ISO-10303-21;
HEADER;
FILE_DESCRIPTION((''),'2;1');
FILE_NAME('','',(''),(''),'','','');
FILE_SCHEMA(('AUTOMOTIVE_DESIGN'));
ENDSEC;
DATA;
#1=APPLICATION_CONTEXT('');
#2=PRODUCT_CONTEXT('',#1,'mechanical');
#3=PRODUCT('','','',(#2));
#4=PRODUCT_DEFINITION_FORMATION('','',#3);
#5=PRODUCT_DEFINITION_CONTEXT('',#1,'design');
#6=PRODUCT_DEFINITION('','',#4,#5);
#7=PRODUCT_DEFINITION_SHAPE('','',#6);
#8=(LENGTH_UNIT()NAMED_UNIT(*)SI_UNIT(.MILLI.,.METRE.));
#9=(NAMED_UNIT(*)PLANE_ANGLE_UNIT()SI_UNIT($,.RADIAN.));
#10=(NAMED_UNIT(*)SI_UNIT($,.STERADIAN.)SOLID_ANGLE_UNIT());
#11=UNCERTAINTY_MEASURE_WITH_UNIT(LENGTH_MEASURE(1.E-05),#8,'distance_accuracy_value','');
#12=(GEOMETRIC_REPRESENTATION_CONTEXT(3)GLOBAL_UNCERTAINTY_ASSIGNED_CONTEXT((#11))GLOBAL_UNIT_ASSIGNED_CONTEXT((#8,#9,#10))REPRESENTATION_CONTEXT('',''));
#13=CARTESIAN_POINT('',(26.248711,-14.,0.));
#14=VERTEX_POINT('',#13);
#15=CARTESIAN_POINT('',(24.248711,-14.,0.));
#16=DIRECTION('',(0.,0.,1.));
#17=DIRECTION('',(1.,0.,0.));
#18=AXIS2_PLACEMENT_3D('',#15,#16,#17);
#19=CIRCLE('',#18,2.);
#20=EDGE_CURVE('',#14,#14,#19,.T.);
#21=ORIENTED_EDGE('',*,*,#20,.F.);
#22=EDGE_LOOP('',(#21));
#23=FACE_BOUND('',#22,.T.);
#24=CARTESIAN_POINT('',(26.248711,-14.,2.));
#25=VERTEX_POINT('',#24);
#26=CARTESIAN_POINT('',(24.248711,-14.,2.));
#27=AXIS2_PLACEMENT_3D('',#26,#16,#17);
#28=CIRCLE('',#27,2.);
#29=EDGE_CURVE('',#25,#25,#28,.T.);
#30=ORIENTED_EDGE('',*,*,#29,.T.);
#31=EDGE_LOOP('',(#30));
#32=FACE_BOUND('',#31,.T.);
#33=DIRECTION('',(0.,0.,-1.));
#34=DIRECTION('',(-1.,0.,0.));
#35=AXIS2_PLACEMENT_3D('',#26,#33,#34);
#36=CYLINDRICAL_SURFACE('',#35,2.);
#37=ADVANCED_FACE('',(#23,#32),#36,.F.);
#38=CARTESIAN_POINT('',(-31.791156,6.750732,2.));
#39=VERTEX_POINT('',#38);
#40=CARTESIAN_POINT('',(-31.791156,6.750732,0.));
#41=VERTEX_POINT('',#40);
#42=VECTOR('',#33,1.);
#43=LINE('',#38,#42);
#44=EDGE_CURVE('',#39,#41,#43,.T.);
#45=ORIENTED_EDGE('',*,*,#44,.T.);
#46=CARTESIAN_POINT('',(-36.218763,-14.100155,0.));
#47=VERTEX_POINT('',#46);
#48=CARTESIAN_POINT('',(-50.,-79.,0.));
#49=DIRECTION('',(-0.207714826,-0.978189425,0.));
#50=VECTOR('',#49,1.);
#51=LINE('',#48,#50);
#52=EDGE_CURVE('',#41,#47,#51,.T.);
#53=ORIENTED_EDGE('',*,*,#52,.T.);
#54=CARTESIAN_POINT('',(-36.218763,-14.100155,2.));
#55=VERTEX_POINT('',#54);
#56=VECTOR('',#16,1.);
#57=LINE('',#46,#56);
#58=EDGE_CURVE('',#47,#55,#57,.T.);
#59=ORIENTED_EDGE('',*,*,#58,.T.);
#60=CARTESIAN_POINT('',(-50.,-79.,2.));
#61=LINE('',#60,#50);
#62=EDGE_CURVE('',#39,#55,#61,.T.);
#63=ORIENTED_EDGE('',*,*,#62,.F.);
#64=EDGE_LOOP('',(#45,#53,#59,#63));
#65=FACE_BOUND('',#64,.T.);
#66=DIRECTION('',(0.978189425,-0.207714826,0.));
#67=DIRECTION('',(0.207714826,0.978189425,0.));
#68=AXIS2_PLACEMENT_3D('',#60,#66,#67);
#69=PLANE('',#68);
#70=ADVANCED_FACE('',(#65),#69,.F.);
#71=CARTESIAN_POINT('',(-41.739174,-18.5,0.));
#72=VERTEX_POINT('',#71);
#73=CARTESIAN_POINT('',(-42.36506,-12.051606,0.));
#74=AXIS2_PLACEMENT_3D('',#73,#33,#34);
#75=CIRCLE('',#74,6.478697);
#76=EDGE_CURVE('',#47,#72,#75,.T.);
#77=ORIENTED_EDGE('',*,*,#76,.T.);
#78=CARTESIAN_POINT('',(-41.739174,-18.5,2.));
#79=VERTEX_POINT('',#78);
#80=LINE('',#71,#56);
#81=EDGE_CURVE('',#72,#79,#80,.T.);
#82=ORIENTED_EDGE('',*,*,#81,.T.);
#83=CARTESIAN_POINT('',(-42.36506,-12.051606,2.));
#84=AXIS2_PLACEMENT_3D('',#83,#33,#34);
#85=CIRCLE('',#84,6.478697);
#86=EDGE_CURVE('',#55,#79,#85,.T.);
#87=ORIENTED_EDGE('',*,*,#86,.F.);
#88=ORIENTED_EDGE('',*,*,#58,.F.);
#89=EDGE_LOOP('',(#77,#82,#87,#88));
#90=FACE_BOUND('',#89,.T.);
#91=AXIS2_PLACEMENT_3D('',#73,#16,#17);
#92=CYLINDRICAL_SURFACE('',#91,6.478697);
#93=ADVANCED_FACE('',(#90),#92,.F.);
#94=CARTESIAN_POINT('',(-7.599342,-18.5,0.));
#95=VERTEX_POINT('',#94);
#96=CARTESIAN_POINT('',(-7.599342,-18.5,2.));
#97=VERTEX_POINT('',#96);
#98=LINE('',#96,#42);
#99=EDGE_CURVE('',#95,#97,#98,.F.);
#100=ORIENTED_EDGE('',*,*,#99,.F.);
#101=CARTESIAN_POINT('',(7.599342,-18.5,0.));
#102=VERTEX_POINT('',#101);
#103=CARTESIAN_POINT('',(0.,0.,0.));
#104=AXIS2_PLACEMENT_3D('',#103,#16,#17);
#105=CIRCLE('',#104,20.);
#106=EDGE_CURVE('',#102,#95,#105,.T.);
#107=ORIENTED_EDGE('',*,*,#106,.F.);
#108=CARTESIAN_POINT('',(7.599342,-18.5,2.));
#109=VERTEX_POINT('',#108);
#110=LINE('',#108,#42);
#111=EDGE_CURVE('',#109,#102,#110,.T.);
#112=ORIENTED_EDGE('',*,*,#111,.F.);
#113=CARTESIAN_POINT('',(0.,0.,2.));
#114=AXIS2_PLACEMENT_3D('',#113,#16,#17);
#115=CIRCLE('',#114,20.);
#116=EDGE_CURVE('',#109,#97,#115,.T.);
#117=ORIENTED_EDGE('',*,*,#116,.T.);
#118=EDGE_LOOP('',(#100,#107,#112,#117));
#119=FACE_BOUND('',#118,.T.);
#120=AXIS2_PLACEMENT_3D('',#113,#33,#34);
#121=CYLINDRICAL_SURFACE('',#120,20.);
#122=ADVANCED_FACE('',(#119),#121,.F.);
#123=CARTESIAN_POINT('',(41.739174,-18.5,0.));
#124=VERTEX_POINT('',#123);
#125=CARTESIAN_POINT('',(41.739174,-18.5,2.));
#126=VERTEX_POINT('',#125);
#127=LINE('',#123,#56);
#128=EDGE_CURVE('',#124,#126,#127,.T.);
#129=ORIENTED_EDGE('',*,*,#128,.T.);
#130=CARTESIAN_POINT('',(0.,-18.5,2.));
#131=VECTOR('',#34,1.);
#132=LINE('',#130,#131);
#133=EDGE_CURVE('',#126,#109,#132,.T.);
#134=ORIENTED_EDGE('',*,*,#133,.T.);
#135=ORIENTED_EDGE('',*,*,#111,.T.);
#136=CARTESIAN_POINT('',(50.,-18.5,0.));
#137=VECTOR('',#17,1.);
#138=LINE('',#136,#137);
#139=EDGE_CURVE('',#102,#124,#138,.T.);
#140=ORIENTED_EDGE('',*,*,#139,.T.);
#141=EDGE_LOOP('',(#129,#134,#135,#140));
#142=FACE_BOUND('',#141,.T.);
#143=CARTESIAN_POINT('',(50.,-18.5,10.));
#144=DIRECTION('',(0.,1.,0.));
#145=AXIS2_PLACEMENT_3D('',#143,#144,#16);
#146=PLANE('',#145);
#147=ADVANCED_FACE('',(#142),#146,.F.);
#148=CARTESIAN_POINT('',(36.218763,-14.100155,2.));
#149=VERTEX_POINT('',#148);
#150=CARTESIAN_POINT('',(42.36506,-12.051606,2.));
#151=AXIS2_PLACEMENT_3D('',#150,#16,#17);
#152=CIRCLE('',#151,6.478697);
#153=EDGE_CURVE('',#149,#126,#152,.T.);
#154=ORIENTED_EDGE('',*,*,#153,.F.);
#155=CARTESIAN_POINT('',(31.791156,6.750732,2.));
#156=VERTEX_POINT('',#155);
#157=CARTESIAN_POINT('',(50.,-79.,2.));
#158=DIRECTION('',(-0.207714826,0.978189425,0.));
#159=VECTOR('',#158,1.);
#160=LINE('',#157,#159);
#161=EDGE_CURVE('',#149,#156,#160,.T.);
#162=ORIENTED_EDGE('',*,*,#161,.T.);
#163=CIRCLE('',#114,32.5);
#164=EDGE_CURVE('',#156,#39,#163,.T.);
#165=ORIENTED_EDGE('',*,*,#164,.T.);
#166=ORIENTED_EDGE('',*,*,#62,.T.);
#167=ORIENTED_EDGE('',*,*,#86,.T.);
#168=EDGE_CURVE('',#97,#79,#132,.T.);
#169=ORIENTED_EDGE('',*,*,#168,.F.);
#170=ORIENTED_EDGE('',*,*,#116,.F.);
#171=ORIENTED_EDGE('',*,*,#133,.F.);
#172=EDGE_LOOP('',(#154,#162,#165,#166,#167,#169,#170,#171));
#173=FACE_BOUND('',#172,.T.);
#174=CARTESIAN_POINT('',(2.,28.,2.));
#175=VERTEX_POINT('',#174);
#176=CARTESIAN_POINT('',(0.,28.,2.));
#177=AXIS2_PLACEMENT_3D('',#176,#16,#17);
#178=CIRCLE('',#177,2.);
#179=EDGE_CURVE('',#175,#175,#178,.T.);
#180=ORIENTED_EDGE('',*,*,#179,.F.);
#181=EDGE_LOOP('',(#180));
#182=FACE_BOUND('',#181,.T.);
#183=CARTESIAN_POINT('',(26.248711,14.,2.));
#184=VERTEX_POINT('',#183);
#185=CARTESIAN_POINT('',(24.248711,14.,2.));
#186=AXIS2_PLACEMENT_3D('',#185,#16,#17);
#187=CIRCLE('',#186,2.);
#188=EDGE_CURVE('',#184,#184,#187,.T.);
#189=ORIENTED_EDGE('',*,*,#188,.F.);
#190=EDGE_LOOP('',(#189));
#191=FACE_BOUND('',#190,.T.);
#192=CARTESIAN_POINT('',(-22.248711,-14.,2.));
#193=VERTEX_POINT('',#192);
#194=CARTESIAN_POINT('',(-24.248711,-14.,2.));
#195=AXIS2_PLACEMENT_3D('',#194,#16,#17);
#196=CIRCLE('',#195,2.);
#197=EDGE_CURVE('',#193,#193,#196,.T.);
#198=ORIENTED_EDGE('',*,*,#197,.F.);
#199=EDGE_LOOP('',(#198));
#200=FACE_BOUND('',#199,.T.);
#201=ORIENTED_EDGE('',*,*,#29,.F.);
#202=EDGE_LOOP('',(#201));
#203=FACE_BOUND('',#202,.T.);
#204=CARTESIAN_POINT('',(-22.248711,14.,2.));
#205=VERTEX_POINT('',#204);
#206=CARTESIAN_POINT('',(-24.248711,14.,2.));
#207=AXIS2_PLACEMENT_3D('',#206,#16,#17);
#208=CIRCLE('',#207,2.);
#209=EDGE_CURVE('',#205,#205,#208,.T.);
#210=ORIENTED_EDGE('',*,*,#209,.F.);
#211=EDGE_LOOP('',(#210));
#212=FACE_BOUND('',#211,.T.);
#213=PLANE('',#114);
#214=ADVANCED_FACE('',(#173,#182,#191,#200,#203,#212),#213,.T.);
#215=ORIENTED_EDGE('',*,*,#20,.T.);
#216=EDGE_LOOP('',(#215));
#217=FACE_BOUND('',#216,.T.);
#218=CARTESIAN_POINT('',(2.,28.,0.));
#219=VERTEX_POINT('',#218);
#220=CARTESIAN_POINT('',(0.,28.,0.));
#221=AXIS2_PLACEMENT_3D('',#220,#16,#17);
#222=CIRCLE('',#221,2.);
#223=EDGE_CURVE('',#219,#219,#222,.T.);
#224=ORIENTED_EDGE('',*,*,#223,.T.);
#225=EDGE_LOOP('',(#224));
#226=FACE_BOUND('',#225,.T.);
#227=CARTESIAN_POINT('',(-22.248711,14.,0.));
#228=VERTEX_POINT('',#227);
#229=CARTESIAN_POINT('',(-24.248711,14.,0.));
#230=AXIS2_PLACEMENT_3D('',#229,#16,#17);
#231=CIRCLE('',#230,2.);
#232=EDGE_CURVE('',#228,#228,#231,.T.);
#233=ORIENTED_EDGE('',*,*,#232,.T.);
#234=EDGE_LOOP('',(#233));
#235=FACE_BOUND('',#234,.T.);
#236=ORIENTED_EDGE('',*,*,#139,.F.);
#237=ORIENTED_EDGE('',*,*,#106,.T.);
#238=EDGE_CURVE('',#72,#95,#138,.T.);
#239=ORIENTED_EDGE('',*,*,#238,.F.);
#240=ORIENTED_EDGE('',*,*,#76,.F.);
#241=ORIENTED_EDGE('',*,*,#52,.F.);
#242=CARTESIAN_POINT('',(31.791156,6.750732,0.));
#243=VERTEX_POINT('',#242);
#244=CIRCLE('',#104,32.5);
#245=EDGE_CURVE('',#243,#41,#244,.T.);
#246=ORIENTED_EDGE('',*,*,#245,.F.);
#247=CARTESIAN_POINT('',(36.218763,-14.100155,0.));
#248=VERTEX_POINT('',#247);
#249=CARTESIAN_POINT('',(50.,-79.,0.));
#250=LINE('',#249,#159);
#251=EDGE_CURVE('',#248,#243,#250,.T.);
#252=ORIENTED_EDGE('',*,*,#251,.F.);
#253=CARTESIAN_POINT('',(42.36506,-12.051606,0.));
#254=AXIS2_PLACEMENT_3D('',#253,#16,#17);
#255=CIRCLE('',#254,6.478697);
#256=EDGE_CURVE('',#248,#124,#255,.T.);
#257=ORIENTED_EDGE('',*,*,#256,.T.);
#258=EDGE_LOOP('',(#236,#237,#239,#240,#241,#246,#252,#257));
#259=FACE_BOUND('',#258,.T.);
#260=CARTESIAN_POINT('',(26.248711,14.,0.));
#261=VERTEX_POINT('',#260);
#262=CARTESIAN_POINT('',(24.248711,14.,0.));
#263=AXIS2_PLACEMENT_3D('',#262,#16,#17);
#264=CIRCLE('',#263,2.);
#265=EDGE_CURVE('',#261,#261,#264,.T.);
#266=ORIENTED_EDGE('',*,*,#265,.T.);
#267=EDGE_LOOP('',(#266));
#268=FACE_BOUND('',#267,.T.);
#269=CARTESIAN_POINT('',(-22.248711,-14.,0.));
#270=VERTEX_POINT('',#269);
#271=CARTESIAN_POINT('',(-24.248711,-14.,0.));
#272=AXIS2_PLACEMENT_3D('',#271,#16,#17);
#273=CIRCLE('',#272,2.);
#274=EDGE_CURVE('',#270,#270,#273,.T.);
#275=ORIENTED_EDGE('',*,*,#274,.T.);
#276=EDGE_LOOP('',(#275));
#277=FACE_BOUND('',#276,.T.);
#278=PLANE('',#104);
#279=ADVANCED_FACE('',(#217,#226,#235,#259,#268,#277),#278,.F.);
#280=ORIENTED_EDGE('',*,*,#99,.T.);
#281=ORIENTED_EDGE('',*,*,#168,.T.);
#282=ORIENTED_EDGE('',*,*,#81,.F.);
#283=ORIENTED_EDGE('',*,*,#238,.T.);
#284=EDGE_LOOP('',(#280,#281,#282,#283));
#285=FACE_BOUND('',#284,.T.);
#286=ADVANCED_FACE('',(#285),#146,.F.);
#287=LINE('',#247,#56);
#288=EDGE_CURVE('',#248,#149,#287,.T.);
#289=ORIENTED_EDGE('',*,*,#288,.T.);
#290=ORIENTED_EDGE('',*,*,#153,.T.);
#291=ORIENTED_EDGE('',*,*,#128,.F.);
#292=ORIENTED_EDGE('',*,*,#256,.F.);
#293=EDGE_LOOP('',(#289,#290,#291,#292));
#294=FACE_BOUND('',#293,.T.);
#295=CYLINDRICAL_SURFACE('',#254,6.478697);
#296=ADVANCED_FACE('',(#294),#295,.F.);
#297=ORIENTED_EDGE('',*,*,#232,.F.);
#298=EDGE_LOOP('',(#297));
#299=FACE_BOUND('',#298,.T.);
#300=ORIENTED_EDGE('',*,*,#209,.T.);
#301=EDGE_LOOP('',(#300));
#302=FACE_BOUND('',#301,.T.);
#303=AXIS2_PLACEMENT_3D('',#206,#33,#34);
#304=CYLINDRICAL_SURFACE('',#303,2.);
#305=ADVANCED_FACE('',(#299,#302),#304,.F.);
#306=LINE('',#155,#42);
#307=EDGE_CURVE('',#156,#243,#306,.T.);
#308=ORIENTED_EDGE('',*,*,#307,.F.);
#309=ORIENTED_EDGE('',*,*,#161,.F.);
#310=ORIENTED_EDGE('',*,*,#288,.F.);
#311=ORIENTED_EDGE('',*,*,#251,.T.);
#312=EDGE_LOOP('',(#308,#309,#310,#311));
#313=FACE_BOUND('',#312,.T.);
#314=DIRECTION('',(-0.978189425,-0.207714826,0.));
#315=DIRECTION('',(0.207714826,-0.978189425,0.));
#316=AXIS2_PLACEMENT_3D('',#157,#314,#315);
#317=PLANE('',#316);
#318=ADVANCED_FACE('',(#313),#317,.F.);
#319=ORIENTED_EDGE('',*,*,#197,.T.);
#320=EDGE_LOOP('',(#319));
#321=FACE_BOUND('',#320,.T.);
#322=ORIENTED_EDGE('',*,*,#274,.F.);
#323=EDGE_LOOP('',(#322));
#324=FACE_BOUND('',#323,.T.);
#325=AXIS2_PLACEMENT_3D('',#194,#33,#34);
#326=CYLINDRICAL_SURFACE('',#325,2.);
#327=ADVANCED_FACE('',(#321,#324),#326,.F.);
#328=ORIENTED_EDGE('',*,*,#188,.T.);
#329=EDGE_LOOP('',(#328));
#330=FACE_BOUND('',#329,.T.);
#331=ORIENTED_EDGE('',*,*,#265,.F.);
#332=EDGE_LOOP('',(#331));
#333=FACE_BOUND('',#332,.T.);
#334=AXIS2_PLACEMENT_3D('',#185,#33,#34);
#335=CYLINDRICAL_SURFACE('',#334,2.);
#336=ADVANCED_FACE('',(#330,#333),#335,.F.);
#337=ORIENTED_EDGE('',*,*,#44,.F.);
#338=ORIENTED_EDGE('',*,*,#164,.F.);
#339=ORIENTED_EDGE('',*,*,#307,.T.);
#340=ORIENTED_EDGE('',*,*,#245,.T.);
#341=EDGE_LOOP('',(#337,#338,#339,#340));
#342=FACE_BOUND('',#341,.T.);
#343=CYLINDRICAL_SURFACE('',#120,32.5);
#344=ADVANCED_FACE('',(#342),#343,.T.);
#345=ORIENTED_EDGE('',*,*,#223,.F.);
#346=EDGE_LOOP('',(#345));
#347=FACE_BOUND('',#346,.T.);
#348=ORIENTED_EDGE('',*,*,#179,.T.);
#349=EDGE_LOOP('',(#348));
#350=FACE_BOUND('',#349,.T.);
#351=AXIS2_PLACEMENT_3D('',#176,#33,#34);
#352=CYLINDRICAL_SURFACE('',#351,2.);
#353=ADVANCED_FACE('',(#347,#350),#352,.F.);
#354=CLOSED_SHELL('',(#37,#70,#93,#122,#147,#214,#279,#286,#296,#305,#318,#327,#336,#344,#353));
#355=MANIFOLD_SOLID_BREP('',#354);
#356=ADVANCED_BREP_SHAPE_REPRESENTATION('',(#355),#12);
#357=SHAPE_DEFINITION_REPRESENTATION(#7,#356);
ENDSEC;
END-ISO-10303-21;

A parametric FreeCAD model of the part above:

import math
import FreeCAD as App
import Part
import Sketcher

V = App.Vector
Q = App.Units.Quantity

doc = App.newDocument("Part")
body = doc.addObject("PartDesign::Body", "Body")

# Sketch on XY plane
sketch1 = body.newObject("Sketcher::SketchObject", "Sketch")
sketch1.AttachmentSupport = (doc.getObject("XY_Plane"), [""])
sketch1.MapMode = "FlatFace"
sketch1.addGeometry([
    Part.LineSegment(V(-50, -79, 0), V(50, -79, 0)),  # 0
    Part.LineSegment(V(50, -79, 0), V(31.8, 6.8, 0)),  # 1
    Part.ArcOfCircle(Part.Circle(V(0, 0, 0), V(0, 0, 1), 32.5), math.radians(12), math.radians(168)),  # 2
    Part.LineSegment(V(-31.8, 6.8, 0), V(-50, -79, 0)),  # 3
    Part.Circle(V(-23, -46.5, 0), V(0, 0, 1), 2.5),  # 4
    Part.Circle(V(0, -71.5, 0), V(0, 0, 1), 2.5),  # 5
    Part.Circle(V(23, -46.5, 0), V(0, 0, 1), 2.5),  # 6
    Part.Circle(V(-24.2, -14, 0), V(0, 0, 1), 2),  # 7
    Part.Circle(V(-24.2, 14, 0), V(0, 0, 1), 2),  # 8
    Part.Circle(V(0, 0, 0), V(0, 0, 1), 20),  # 9
    Part.Circle(V(24.2, -14, 0), V(0, 0, 1), 2),  # 10
    Part.Circle(V(0, 28, 0), V(0, 0, 1), 2),  # 11
    Part.Circle(V(24.2, 14, 0), V(0, 0, 1), 2),  # 12
], False)
sketch1.addConstraint([
    Sketcher.Constraint("Coincident", 0, 2, 1, 1),
    Sketcher.Constraint("Tangent", 1, 2, 2, 1),
    Sketcher.Constraint("Tangent", 2, 2, 3, 1),
    Sketcher.Constraint("Coincident", 3, 2, 0, 1),
    Sketcher.Constraint("Horizontal", 0),
    Sketcher.Constraint("Coincident", 2, 3, -1, 1),
    Sketcher.Constraint("Coincident", 9, 3, -1, 1),
    Sketcher.Constraint("Equal", 4, 5),
    Sketcher.Constraint("Equal", 5, 6),
    Sketcher.Constraint("Equal", 7, 8),
    Sketcher.Constraint("Equal", 8, 10),
    Sketcher.Constraint("Equal", 10, 11),
    Sketcher.Constraint("Equal", 11, 12),
    Sketcher.Constraint("Symmetric", 8, 3, 10, 3, -1, 1),
    Sketcher.Constraint("Symmetric", 7, 3, 12, 3, -1, 1),
    Sketcher.Constraint("Symmetric", 4, 3, 6, 3, -2),
    Sketcher.Constraint("Symmetric", 7, 3, 10, 3, -2),
    Sketcher.Constraint("PointOnObject", 5, 3, -2),
    Sketcher.Constraint("PointOnObject", 11, 3, -2),
    Sketcher.Constraint("Horizontal", 1, 2, 2, 2),
    Sketcher.Constraint("Diameter", 4, Q("5 mm")),
    Sketcher.Constraint("Diameter", 7, Q("4 mm")),
    Sketcher.Constraint("Diameter", 9, Q("40 mm")),
    Sketcher.Constraint("Radius", 2, Q("32.5 mm")),
    Sketcher.Constraint("DistanceX", 0, 1, 0, 2, Q("100 mm")),
    Sketcher.Constraint("DistanceX", 4, 3, -1, 1, Q("23 mm")),
    Sketcher.Constraint("DistanceY", 7, 3, -1, 1, Q("14 mm")),
    Sketcher.Constraint("DistanceY", -1, 1, 11, 3, Q("28 mm")),
    Sketcher.Constraint("DistanceY", 0, 2, -1, 1, Q("79 mm")),
    Sketcher.Constraint("DistanceY", 5, 3, 4, 3, Q("25 mm")),
    Sketcher.Constraint("DistanceY", 4, 3, -1, 1, Q("46.5 mm")),
    Sketcher.Constraint("DistanceX", 7, 3, -1, 1, Q("24.248711 mm")),
])
pad1 = body.newObject("PartDesign::Pad", "Pad")
pad1.Profile = sketch1
pad1.Length = 2

# Sketch on XY plane
sketch2 = body.newObject("Sketcher::SketchObject", "Sketch001")
sketch2.AttachmentSupport = (doc.getObject("XY_Plane"), [""])
sketch2.MapMode = "FlatFace"
sketch2.addGeometry([
    Part.LineSegment(V(50, -18, 0), V(50, -79, 0)),
    Part.LineSegment(V(50, -79, 0), V(-50, -79, 0)),
    Part.LineSegment(V(-50, -79, 0), V(-50, -18, 0)),
    Part.LineSegment(V(-50, -18, 0), V(50, -18, 0)),
], False)
sketch2.addConstraint([
    Sketcher.Constraint("Coincident", 0, 2, 1, 1),
    Sketcher.Constraint("Coincident", 1, 2, 2, 1),
    Sketcher.Constraint("Coincident", 2, 2, 3, 1),
    Sketcher.Constraint("Coincident", 3, 2, 0, 1),
    Sketcher.Constraint("Vertical", 0),
    Sketcher.Constraint("Horizontal", 1),
    Sketcher.Constraint("Vertical", 2),
    Sketcher.Constraint("Horizontal", 3),
    Sketcher.Constraint("DistanceY", 0, 2, 0, 1, Q("60.5 mm")),
    Sketcher.Constraint("DistanceX", -1, 1, 0, 2, Q("50 mm")),
    Sketcher.Constraint("DistanceY", 0, 2, -1, 1, Q("79 mm")),
    Sketcher.Constraint("DistanceX", 1, 2, 1, 1, Q("100.062981 mm")),
])
pocket1 = body.newObject("PartDesign::Pocket", "Pocket")
pocket1.Profile = sketch2
pocket1.Length = 10
pocket1.Reversed = True

# Sketch on XY plane
sketch3 = body.newObject("Sketcher::SketchObject", "Sketch002")
sketch3.AttachmentSupport = (doc.getObject("XY_Plane"), [""])
sketch3.MapMode = "FlatFace"
sketch3.AttachmentOffset = App.Placement(V(0, 0, 2), App.Rotation())
sketch3.addGeometry([
    Part.LineSegment(V(-37.2, -18.5, 0), V(-36.2, -14.1, 0)),
    Part.ArcOfCircle(Part.Circle(V(-42.4, -12.1, 0), V(0, 0, 1), 6.5), math.radians(-84), math.radians(-18)),
    Part.LineSegment(V(-41.7, -18.5, 0), V(-37.2, -18.5, 0)),
], False)
sketch3.addConstraint([
    Sketcher.Constraint("Coincident", 0, 2, 1, 2),
    Sketcher.Constraint("Coincident", 1, 1, 2, 1),
    Sketcher.Constraint("Coincident", 2, 2, 0, 1),
    Sketcher.Constraint("Horizontal", 2),
    Sketcher.Constraint("DistanceY", 1, 1, -1, 1, Q("18.5 mm")),
    Sketcher.Constraint("Radius", 1, Q("6.478697 mm")),
    Sketcher.Constraint("DistanceX", 2, 1, 2, 2, Q("4.58612 mm")),
    Sketcher.Constraint("DistanceX", 1, 3, -1, 1, Q("42.36506 mm")),
    Sketcher.Constraint("DistanceY", 0, 2, 1, 3, Q("2.048549 mm")),
    Sketcher.Constraint("DistanceX", 1, 1, 0, 2, Q("5.520411 mm")),
])
pad2 = body.newObject("PartDesign::Pad", "Pad001")
pad2.Profile = sketch3
pad2.Length = 2
pad2.Reversed = True
doc.recompute()

mirrored = body.newObject("PartDesign::Mirrored", "Mirrored")
mirrored.Originals = [pad2]
mirrored.MirrorPlane = (doc.getObject("YZ_Plane"), [""])
body.Tip = mirrored

doc.recompute()
